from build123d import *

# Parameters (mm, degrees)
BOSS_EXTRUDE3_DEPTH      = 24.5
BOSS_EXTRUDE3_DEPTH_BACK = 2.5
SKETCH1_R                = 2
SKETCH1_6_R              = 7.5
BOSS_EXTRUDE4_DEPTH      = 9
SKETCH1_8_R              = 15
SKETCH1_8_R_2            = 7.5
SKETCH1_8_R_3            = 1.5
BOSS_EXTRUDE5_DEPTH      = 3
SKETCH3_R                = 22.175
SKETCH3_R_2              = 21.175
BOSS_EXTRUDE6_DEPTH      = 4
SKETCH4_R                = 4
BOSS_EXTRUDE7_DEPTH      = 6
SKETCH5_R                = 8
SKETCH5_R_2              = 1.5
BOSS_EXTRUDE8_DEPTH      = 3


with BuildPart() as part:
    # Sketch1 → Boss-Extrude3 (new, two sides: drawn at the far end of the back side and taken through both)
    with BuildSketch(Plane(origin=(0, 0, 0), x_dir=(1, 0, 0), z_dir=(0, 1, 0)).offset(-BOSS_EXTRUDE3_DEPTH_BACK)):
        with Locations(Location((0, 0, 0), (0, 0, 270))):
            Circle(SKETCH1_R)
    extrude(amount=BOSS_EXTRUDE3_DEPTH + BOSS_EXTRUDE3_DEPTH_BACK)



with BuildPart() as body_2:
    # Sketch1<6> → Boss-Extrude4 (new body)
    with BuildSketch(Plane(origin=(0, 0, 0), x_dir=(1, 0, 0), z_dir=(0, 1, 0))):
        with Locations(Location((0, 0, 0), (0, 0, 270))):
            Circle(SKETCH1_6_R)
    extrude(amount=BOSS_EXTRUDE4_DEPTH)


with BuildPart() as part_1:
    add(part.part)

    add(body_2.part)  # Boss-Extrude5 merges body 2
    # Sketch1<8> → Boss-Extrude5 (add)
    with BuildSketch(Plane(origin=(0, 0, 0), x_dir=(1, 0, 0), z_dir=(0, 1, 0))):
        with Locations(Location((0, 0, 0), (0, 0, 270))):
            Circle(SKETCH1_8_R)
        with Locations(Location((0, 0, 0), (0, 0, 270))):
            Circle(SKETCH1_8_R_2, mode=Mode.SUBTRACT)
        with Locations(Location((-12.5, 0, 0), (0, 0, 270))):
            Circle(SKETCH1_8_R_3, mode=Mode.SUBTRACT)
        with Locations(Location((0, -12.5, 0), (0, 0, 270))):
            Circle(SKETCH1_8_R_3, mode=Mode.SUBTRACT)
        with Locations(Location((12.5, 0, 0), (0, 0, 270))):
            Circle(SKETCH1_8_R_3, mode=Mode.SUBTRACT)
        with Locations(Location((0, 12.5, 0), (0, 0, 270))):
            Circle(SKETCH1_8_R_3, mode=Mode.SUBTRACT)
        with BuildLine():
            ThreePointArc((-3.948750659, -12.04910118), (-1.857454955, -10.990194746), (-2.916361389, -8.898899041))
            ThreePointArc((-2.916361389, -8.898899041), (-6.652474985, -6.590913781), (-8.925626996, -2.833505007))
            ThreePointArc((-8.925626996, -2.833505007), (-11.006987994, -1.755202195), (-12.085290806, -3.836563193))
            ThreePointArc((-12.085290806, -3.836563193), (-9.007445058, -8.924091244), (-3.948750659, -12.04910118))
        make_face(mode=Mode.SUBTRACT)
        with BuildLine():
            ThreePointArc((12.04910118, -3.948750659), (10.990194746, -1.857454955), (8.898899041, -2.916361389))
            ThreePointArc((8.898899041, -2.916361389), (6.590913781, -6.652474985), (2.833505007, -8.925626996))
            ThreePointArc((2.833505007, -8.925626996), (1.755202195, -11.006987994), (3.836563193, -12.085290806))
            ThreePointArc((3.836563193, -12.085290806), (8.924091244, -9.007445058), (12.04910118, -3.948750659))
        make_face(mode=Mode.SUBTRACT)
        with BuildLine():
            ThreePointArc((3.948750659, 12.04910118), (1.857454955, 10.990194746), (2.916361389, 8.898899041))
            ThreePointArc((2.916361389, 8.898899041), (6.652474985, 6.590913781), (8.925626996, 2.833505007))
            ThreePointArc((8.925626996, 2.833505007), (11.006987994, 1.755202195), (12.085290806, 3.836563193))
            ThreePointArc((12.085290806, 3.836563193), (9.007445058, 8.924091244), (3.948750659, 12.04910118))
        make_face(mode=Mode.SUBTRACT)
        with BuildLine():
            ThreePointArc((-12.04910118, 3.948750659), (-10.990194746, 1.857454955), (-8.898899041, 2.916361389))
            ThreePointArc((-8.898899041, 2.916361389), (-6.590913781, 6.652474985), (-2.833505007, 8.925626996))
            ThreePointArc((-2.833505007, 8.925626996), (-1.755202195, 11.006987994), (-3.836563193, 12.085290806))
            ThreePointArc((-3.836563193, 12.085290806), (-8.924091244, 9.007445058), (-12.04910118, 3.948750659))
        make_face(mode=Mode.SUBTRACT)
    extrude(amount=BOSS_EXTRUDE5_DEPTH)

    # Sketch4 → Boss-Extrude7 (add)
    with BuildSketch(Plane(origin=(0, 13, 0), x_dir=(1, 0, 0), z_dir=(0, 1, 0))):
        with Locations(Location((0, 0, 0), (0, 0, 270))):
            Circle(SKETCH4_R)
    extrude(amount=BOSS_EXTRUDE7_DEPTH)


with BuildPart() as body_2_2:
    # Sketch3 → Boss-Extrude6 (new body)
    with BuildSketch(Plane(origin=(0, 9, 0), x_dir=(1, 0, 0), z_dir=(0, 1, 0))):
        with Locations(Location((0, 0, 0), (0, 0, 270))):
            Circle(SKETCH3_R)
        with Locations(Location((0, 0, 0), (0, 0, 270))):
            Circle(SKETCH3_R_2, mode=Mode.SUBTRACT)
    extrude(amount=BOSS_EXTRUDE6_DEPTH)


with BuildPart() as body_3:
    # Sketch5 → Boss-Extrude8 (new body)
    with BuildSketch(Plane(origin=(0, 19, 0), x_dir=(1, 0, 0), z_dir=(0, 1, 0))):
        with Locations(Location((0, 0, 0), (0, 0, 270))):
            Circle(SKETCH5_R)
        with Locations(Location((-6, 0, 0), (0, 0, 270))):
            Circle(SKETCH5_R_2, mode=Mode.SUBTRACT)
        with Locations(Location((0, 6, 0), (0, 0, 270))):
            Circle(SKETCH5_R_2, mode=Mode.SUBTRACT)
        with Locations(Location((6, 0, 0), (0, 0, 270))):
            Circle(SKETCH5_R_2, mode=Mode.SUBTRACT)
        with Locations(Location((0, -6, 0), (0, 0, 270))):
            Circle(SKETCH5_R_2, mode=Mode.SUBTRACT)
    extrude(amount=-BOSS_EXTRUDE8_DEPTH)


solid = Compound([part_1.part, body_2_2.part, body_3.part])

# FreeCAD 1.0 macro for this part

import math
import FreeCAD as App
import Part
import Sketcher
from FreeCAD import Vector

doc = App.newDocument("Part")
body = doc.addObject("PartDesign::Body", "Body")

sketch1 = body.newObject("Sketcher::SketchObject", "Sketch")
sketch1.AttachmentSupport = (doc.getObject("XZ_Plane"), [""])
sketch1.MapMode = "FlatFace"
sketch1.addGeometry(Part.Circle(Vector(0, 0, 0), Vector(0, 0, 1), 2), False)
sketch1.addConstraint([
    Sketcher.Constraint("Coincident", 0, 3, -1, 1),
    Sketcher.Constraint("Diameter", 0, 4.0),
])
pad1 = body.newObject("PartDesign::Pad", "Pad")
pad1.Profile = sketch1
pad1.Type = "TwoLengths"
pad1.Length = 24.5
pad1.Length2 = 2.5
pad1.Reversed = True
body2 = doc.addObject("PartDesign::Body", "Body001")

sketch2 = body2.newObject("Sketcher::SketchObject", "Sketch001")
sketch2.AttachmentSupport = (doc.getObject("XZ_Plane001"), [""])
sketch2.MapMode = "FlatFace"
sketch2.addGeometry(Part.Circle(Vector(0, 0, 0), Vector(0, 0, 1), 8), False)
sketch2.addConstraint([
    Sketcher.Constraint("Coincident", 0, 3, -1, 1),
    Sketcher.Constraint("Diameter", 0, 15.0),
])
pad2 = body2.newObject("PartDesign::Pad", "Pad001")
pad2.Profile = sketch2
pad2.Length = 9
pad2.Reversed = True
doc.recompute()

boolean = body.newObject("PartDesign::Boolean", "Boolean")
boolean.Type = "Fuse"
boolean.addObjects([body2])

sketch3 = body.newObject("Sketcher::SketchObject", "Sketch002")
sketch3.AttachmentSupport = (doc.getObject("XZ_Plane"), [""])
sketch3.MapMode = "FlatFace"
sketch3.addGeometry([
    Part.Circle(Vector(0, 0, 0), Vector(0, 0, 1), 15),
    Part.Circle(Vector(0, -12.5, 0), Vector(0, 0, 1), 1.5),
    Part.ArcOfCircle(Part.Circle(Vector(-10.5, -3.4, 0), Vector(0, 0, 1), 1.7), math.radians(18), math.radians(198)),
    Part.ArcOfCircle(Part.Circle(Vector(0, 0, 0), Vector(0, 0, 1), 12.7), math.radians(-162), math.radians(-108)),
    Part.ArcOfCircle(Part.Circle(Vector(-3.3, -10.5, 0), Vector(0, 0, 1), 1.7), math.radians(-108), math.radians(72)),
    Part.ArcOfCircle(Part.Circle(Vector(0, 0, 0), Vector(0, 0, 1), 9.4), math.radians(-162), math.radians(-108)),
    Part.Circle(Vector(-12.5, 0, 0), Vector(0, 0, 1), 1.5),
    Part.ArcOfCircle(Part.Circle(Vector(-3.4, 10.5, 0), Vector(0, 0, 1), 1.7), math.radians(-72), math.radians(108)),
    Part.ArcOfCircle(Part.Circle(Vector(0, 0, 0), Vector(0, 0, 1), 12.7), math.radians(108), math.radians(162)),
    Part.ArcOfCircle(Part.Circle(Vector(-10.5, 3.3, 0), Vector(0, 0, 1), 1.7), math.radians(162), math.radians(342)),
    Part.ArcOfCircle(Part.Circle(Vector(0, 0, 0), Vector(0, 0, 1), 9.4), math.radians(108), math.radians(162)),
    Part.ArcOfCircle(Part.Circle(Vector(3.4, -10.5, 0), Vector(0, 0, 1), 1.7), math.radians(108), math.radians(288)),
    Part.ArcOfCircle(Part.Circle(Vector(0, 0, 0), Vector(0, 0, 1), 12.7), math.radians(-72), math.radians(-18)),
    Part.ArcOfCircle(Part.Circle(Vector(10.5, -3.3, 0), Vector(0, 0, 1), 1.7), math.radians(-18), math.radians(162)),
    Part.ArcOfCircle(Part.Circle(Vector(0, 0, 0), Vector(0, 0, 1), 9.4), math.radians(-72), math.radians(-18)),
    Part.Circle(Vector(12.5, 0, 0), Vector(0, 0, 1), 1.5),
    Part.Circle(Vector(0, 0, 0), Vector(0, 0, 1), 7.5),
    Part.ArcOfCircle(Part.Circle(Vector(10.5, 3.4, 0), Vector(0, 0, 1), 1.7), math.radians(-162), math.radians(18)),
    Part.ArcOfCircle(Part.Circle(Vector(0, 0, 0), Vector(0, 0, 1), 12.7), math.radians(18), math.radians(72)),
    Part.ArcOfCircle(Part.Circle(Vector(3.3, 10.5, 0), Vector(0, 0, 1), 1.7), math.radians(72), math.radians(252)),
    Part.ArcOfCircle(Part.Circle(Vector(0, 0, 0), Vector(0, 0, 1), 9.4), math.radians(18), math.radians(72)),
    Part.Circle(Vector(0, 12.5, 0), Vector(0, 0, 1), 1.5),
], False)
sketch3.addConstraint([
    Sketcher.Constraint("Tangent", 2, 2, 3, 1),
    Sketcher.Constraint("Tangent", 3, 2, 4, 1),
    Sketcher.Constraint("Tangent", 4, 2, 5, 2),
    Sketcher.Constraint("Tangent", 5, 1, 2, 1),
    Sketcher.Constraint("Tangent", 7, 2, 8, 1),
    Sketcher.Constraint("Tangent", 8, 2, 9, 1),
    Sketcher.Constraint("Tangent", 9, 2, 10, 2),
    Sketcher.Constraint("Tangent", 10, 1, 7, 1),
    Sketcher.Constraint("Tangent", 11, 2, 12, 1),
    Sketcher.Constraint("Tangent", 12, 2, 13, 1),
    Sketcher.Constraint("Tangent", 13, 2, 14, 2),
    Sketcher.Constraint("Tangent", 14, 1, 11, 1),
    Sketcher.Constraint("Tangent", 17, 2, 18, 1),
    Sketcher.Constraint("Tangent", 18, 2, 19, 1),
    Sketcher.Constraint("Tangent", 19, 2, 20, 2),
    Sketcher.Constraint("Tangent", 20, 1, 17, 1),
    Sketcher.Constraint("Coincident", 0, 3, -1, 1),
    Sketcher.Constraint("Coincident", 3, 3, -1, 1),
    Sketcher.Constraint("Coincident", 5, 3, -1, 1),
    Sketcher.Constraint("Coincident", 8, 3, -1, 1),
    Sketcher.Constraint("Coincident", 10, 3, -1, 1),
    Sketcher.Constraint("Coincident", 12, 3, -1, 1),
    Sketcher.Constraint("Coincident", 14, 3, -1, 1),
    Sketcher.Constraint("Coincident", 16, 3, -1, 1),
    Sketcher.Constraint("Coincident", 18, 3, -1, 1),
    Sketcher.Constraint("Coincident", 20, 3, -1, 1),
    Sketcher.Constraint("Equal", 1, 6),
    Sketcher.Constraint("Equal", 4, 7),
    Sketcher.Constraint("Equal", 3, 8),
    Sketcher.Constraint("Equal", 9, 11),
    Sketcher.Constraint("Equal", 8, 12),
    Sketcher.Constraint("Equal", 6, 15),
    Sketcher.Constraint("Equal", 13, 17),
    Sketcher.Constraint("Equal", 12, 18),
    Sketcher.Constraint("Equal", 15, 21),
    Sketcher.Constraint("Symmetric", 6, 3, 15, 3, -1, 1),
    Sketcher.Constraint("Symmetric", 1, 3, 21, 3, -1, 1),
    Sketcher.Constraint("PointOnObject", 1, 3, -2),
    Sketcher.Constraint("PointOnObject", 6, 3, -1),
    Sketcher.Constraint("Diameter", 0, 30.0),
    Sketcher.Constraint("Diameter", 1, 3.0),
    Sketcher.Constraint("Diameter", 16, 15.0),
    Sketcher.Constraint("DistanceY", 1, 3, -1, 1, 12.5),
    Sketcher.Constraint("DistanceX", 6, 3, -1, 1, 12.5),
    Sketcher.Constraint("Radius", 2, 1.657528),
    Sketcher.Constraint("Radius", 5, 9.364591),
    Sketcher.Constraint("DistanceX", 2, 3, -1, 1, 10.474),
    Sketcher.Constraint("DistanceY", -1, 1, 7, 3, 10.474),
    Sketcher.Constraint("DistanceY", 11, 3, -1, 1, 10.474),
    Sketcher.Constraint("DistanceX", -1, 1, 17, 3, 10.474),
    Sketcher.Constraint("DistanceY", 4, 3, -1, 1, 10.505459),
    Sketcher.Constraint("DistanceX", 9, 3, -1, 1, 10.505459),
    Sketcher.Constraint("DistanceX", -1, 1, 13, 3, 10.505459),
    Sketcher.Constraint("DistanceY", -1, 1, 19, 3, 10.505459),
])
pad3 = body.newObject("PartDesign::Pad", "Pad002")
pad3.Profile = sketch3
pad3.Length = 3
pad3.Reversed = True

sketch4 = body.newObject("Sketcher::SketchObject", "Sketch003")
sketch4.AttachmentSupport = (doc.getObject("XZ_Plane"), [""])
sketch4.MapMode = "FlatFace"
sketch4.AttachmentOffset = App.Placement(Vector(0, 0, -13), App.Rotation())
sketch4.addGeometry(Part.Circle(Vector(0, 0, 0), Vector(0, 0, 1), 4), False)
sketch4.addConstraint([
    Sketcher.Constraint("Coincident", 0, 3, -1, 1),
    Sketcher.Constraint("Diameter", 0, 8.0),
])
pad4 = body.newObject("PartDesign::Pad", "Pad003")
pad4.Profile = sketch4
pad4.Length = 6
pad4.Reversed = True
body3 = doc.addObject("PartDesign::Body", "Body002")

sketch5 = body3.newObject("Sketcher::SketchObject", "Sketch004")
sketch5.AttachmentSupport = (doc.getObject("XZ_Plane002"), [""])
sketch5.MapMode = "FlatFace"
sketch5.AttachmentOffset = App.Placement(Vector(0, 0, -9), App.Rotation())
sketch5.addGeometry([
    Part.Circle(Vector(0, 0, 0), Vector(0, 0, 1), 22),
    Part.Circle(Vector(0, 0, 0), Vector(0, 0, 1), 21),
], False)
sketch5.addConstraint([
    Sketcher.Constraint("Coincident", 0, 3, -1, 1),
    Sketcher.Constraint("Coincident", 1, 3, -1, 1),
    Sketcher.Constraint("Diameter", 0, 44.35),
    Sketcher.Constraint("Diameter", 1, 42.35),
])
pad5 = body3.newObject("PartDesign::Pad", "Pad004")
pad5.Profile = sketch5
pad5.Length = 4
pad5.Reversed = True
body4 = doc.addObject("PartDesign::Body", "Body003")

sketch6 = body4.newObject("Sketcher::SketchObject", "Sketch005")
sketch6.AttachmentSupport = (doc.getObject("XZ_Plane003"), [""])
sketch6.MapMode = "FlatFace"
sketch6.AttachmentOffset = App.Placement(Vector(0, 0, -19), App.Rotation())
sketch6.addGeometry([
    Part.Circle(Vector(0, 0, 0), Vector(0, 0, 1), 8),
    Part.Circle(Vector(0, -6, 0), Vector(0, 0, 1), 1.5),
    Part.Circle(Vector(-6, 0, 0), Vector(0, 0, 1), 1.5),
    Part.Circle(Vector(6, 0, 0), Vector(0, 0, 1), 1.5),
    Part.Circle(Vector(0, 6, 0), Vector(0, 0, 1), 1.5),
], False)
sketch6.addConstraint([
    Sketcher.Constraint("Coincident", 0, 3, -1, 1),
    Sketcher.Constraint("Equal", 1, 2),
    Sketcher.Constraint("Equal", 2, 3),
    Sketcher.Constraint("Equal", 3, 4),
    Sketcher.Constraint("Symmetric", 2, 3, 3, 3, -1, 1),
    Sketcher.Constraint("Symmetric", 1, 3, 4, 3, -1, 1),
    Sketcher.Constraint("PointOnObject", 1, 3, -2),
    Sketcher.Constraint("PointOnObject", 2, 3, -1),
    Sketcher.Constraint("Diameter", 0, 16.0),
    Sketcher.Constraint("Diameter", 1, 3.0),
    Sketcher.Constraint("DistanceY", 1, 3, -1, 1, 6.0),
    Sketcher.Constraint("DistanceX", 2, 3, -1, 1, 6.0),
])
pad6 = body4.newObject("PartDesign::Pad", "Pad005")
pad6.Profile = sketch6
pad6.Length = 3

doc.recompute()
